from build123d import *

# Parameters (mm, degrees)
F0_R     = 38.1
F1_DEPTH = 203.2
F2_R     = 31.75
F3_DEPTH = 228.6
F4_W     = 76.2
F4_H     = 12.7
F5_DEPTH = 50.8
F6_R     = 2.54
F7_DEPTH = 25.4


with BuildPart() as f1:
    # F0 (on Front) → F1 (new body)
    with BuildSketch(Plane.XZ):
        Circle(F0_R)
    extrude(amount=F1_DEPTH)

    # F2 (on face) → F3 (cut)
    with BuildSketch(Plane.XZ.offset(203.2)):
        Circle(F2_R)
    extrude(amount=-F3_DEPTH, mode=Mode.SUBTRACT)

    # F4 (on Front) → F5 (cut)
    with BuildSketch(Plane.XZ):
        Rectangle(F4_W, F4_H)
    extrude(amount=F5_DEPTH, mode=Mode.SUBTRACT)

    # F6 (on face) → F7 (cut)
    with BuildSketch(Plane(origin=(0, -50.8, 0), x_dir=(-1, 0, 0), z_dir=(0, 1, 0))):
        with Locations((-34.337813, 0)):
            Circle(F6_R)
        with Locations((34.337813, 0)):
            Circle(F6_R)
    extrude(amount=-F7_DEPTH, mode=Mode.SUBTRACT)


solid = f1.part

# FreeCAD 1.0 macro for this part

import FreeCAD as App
import Part
import Sketcher

V = App.Vector
Q = App.Units.Quantity

doc = App.newDocument("Part")
params = doc.addObject("Spreadsheet::Sheet", "Params")
for row, (alias, value) in enumerate([
    ("sketch1_diameter", "3 in"),
    ("pad1_length", "8 in"),
    ("sketch2_diameter", "2.5 in"),
    ("pocket1_length", "9 in"),
    ("sketch3_width", "3 in"),
    ("sketch3_height", "0.5 in"),
    ("pocket2_length", "2 in"),
    ("sketch4_diameter", "0.2 in"),
    ("pocket3_length", "1 in"),
], start=1):
    params.set(f"A{row}", alias)
    params.set(f"B{row}", "=" + value)
    params.setAlias(f"B{row}", alias)

body = doc.addObject("PartDesign::Body", "Body")

sketch1 = body.newObject("Sketcher::SketchObject", "Sketch")
sketch1.AttachmentSupport = (doc.getObject("XZ_Plane"), [""])
sketch1.MapMode = "FlatFace"
sketch1.addGeometry(Part.Circle(V(0, 0, 0), V(0, 0, 1), 38), False)
sketch1.addConstraint([
    Sketcher.Constraint("Coincident", 0, 3, -1, 1),
    Sketcher.Constraint("Diameter", 0, Q("3 in")),
])
sketch1.setExpression("Constraints[1]", "Params.sketch1_diameter")
pad1 = body.newObject("PartDesign::Pad", "Pad")
pad1.Profile = sketch1
pad1.setExpression("Length", "Params.pad1_length")

sketch2 = body.newObject("Sketcher::SketchObject", "Sketch001")
sketch2.AttachmentSupport = (doc.getObject("XZ_Plane"), [""])
sketch2.MapMode = "FlatFace"
sketch2.AttachmentOffset = App.Placement(V(0, 0, 8 * 25.4), App.Rotation())
sketch2.addGeometry(Part.Circle(V(0, 0, 0), V(0, 0, 1), 32), False)
sketch2.addConstraint([
    Sketcher.Constraint("Coincident", 0, 3, -1, 1),
    Sketcher.Constraint("Diameter", 0, Q("2.5 in")),
])
sketch2.setExpression("Constraints[1]", "Params.sketch2_diameter")
pocket1 = body.newObject("PartDesign::Pocket", "Pocket")
pocket1.Profile = sketch2
pocket1.setExpression("Length", "Params.pocket1_length")

sketch3 = body.newObject("Sketcher::SketchObject", "Sketch002")
sketch3.AttachmentSupport = (doc.getObject("XZ_Plane"), [""])
sketch3.MapMode = "FlatFace"
sketch3.addGeometry([
    Part.LineSegment(V(-38, 6, 0), V(-38, -6, 0)),
    Part.LineSegment(V(-38, -6, 0), V(38, -6, 0)),
    Part.LineSegment(V(38, -6, 0), V(38, 6, 0)),
    Part.LineSegment(V(38, 6, 0), V(-38, 6, 0)),
], False)
sketch3.addConstraint([
    Sketcher.Constraint("Coincident", 0, 2, 1, 1),
    Sketcher.Constraint("Coincident", 1, 2, 2, 1),
    Sketcher.Constraint("Coincident", 2, 2, 3, 1),
    Sketcher.Constraint("Coincident", 3, 2, 0, 1),
    Sketcher.Constraint("Vertical", 0),
    Sketcher.Constraint("Horizontal", 1),
    Sketcher.Constraint("Vertical", 2),
    Sketcher.Constraint("Horizontal", 3),
    Sketcher.Constraint("Symmetric", 0, 2, 2, 2, -1, 1),
    Sketcher.Constraint("DistanceX", 1, 1, 1, 2, Q("3 in")),
    Sketcher.Constraint("DistanceY", 0, 2, 0, 1, Q("0.5 in")),
])
sketch3.setExpression("Constraints[9]", "Params.sketch3_width")
sketch3.setExpression("Constraints[10]", "Params.sketch3_height")
pocket2 = body.newObject("PartDesign::Pocket", "Pocket001")
pocket2.Profile = sketch3
pocket2.setExpression("Length", "Params.pocket2_length")
pocket2.Reversed = True

sketch4 = body.newObject("Sketcher::SketchObject", "Sketch003")
sketch4.AttachmentSupport = (doc.getObject("XZ_Plane"), [""])
sketch4.MapMode = "FlatFace"
sketch4.AttachmentOffset = App.Placement(V(0, 0, 2 * 25.4), App.Rotation())
sketch4.addGeometry([
    Part.Circle(V(34.3, 0, 0), V(0, 0, 1), 2.5),
    Part.Circle(V(-34.3, 0, 0), V(0, 0, 1), 2.5),
], False)
sketch4.addConstraint([
    Sketcher.Constraint("Equal", 0, 1),
    Sketcher.Constraint("Symmetric", 0, 3, 1, 3, -1, 1),
    Sketcher.Constraint("PointOnObject", 0, 3, -1),
    Sketcher.Constraint("Diameter", 0, Q("0.2 in")),
    Sketcher.Constraint("DistanceX", -1, 1, 0, 3, 34.337813),
])
sketch4.setExpression("Constraints[3]", "Params.sketch4_diameter")
pocket3 = body.newObject("PartDesign::Pocket", "Pocket002")
pocket3.Profile = sketch4
pocket3.setExpression("Length", "Params.pocket3_length")
pocket3.Reversed = True

doc.recompute()
